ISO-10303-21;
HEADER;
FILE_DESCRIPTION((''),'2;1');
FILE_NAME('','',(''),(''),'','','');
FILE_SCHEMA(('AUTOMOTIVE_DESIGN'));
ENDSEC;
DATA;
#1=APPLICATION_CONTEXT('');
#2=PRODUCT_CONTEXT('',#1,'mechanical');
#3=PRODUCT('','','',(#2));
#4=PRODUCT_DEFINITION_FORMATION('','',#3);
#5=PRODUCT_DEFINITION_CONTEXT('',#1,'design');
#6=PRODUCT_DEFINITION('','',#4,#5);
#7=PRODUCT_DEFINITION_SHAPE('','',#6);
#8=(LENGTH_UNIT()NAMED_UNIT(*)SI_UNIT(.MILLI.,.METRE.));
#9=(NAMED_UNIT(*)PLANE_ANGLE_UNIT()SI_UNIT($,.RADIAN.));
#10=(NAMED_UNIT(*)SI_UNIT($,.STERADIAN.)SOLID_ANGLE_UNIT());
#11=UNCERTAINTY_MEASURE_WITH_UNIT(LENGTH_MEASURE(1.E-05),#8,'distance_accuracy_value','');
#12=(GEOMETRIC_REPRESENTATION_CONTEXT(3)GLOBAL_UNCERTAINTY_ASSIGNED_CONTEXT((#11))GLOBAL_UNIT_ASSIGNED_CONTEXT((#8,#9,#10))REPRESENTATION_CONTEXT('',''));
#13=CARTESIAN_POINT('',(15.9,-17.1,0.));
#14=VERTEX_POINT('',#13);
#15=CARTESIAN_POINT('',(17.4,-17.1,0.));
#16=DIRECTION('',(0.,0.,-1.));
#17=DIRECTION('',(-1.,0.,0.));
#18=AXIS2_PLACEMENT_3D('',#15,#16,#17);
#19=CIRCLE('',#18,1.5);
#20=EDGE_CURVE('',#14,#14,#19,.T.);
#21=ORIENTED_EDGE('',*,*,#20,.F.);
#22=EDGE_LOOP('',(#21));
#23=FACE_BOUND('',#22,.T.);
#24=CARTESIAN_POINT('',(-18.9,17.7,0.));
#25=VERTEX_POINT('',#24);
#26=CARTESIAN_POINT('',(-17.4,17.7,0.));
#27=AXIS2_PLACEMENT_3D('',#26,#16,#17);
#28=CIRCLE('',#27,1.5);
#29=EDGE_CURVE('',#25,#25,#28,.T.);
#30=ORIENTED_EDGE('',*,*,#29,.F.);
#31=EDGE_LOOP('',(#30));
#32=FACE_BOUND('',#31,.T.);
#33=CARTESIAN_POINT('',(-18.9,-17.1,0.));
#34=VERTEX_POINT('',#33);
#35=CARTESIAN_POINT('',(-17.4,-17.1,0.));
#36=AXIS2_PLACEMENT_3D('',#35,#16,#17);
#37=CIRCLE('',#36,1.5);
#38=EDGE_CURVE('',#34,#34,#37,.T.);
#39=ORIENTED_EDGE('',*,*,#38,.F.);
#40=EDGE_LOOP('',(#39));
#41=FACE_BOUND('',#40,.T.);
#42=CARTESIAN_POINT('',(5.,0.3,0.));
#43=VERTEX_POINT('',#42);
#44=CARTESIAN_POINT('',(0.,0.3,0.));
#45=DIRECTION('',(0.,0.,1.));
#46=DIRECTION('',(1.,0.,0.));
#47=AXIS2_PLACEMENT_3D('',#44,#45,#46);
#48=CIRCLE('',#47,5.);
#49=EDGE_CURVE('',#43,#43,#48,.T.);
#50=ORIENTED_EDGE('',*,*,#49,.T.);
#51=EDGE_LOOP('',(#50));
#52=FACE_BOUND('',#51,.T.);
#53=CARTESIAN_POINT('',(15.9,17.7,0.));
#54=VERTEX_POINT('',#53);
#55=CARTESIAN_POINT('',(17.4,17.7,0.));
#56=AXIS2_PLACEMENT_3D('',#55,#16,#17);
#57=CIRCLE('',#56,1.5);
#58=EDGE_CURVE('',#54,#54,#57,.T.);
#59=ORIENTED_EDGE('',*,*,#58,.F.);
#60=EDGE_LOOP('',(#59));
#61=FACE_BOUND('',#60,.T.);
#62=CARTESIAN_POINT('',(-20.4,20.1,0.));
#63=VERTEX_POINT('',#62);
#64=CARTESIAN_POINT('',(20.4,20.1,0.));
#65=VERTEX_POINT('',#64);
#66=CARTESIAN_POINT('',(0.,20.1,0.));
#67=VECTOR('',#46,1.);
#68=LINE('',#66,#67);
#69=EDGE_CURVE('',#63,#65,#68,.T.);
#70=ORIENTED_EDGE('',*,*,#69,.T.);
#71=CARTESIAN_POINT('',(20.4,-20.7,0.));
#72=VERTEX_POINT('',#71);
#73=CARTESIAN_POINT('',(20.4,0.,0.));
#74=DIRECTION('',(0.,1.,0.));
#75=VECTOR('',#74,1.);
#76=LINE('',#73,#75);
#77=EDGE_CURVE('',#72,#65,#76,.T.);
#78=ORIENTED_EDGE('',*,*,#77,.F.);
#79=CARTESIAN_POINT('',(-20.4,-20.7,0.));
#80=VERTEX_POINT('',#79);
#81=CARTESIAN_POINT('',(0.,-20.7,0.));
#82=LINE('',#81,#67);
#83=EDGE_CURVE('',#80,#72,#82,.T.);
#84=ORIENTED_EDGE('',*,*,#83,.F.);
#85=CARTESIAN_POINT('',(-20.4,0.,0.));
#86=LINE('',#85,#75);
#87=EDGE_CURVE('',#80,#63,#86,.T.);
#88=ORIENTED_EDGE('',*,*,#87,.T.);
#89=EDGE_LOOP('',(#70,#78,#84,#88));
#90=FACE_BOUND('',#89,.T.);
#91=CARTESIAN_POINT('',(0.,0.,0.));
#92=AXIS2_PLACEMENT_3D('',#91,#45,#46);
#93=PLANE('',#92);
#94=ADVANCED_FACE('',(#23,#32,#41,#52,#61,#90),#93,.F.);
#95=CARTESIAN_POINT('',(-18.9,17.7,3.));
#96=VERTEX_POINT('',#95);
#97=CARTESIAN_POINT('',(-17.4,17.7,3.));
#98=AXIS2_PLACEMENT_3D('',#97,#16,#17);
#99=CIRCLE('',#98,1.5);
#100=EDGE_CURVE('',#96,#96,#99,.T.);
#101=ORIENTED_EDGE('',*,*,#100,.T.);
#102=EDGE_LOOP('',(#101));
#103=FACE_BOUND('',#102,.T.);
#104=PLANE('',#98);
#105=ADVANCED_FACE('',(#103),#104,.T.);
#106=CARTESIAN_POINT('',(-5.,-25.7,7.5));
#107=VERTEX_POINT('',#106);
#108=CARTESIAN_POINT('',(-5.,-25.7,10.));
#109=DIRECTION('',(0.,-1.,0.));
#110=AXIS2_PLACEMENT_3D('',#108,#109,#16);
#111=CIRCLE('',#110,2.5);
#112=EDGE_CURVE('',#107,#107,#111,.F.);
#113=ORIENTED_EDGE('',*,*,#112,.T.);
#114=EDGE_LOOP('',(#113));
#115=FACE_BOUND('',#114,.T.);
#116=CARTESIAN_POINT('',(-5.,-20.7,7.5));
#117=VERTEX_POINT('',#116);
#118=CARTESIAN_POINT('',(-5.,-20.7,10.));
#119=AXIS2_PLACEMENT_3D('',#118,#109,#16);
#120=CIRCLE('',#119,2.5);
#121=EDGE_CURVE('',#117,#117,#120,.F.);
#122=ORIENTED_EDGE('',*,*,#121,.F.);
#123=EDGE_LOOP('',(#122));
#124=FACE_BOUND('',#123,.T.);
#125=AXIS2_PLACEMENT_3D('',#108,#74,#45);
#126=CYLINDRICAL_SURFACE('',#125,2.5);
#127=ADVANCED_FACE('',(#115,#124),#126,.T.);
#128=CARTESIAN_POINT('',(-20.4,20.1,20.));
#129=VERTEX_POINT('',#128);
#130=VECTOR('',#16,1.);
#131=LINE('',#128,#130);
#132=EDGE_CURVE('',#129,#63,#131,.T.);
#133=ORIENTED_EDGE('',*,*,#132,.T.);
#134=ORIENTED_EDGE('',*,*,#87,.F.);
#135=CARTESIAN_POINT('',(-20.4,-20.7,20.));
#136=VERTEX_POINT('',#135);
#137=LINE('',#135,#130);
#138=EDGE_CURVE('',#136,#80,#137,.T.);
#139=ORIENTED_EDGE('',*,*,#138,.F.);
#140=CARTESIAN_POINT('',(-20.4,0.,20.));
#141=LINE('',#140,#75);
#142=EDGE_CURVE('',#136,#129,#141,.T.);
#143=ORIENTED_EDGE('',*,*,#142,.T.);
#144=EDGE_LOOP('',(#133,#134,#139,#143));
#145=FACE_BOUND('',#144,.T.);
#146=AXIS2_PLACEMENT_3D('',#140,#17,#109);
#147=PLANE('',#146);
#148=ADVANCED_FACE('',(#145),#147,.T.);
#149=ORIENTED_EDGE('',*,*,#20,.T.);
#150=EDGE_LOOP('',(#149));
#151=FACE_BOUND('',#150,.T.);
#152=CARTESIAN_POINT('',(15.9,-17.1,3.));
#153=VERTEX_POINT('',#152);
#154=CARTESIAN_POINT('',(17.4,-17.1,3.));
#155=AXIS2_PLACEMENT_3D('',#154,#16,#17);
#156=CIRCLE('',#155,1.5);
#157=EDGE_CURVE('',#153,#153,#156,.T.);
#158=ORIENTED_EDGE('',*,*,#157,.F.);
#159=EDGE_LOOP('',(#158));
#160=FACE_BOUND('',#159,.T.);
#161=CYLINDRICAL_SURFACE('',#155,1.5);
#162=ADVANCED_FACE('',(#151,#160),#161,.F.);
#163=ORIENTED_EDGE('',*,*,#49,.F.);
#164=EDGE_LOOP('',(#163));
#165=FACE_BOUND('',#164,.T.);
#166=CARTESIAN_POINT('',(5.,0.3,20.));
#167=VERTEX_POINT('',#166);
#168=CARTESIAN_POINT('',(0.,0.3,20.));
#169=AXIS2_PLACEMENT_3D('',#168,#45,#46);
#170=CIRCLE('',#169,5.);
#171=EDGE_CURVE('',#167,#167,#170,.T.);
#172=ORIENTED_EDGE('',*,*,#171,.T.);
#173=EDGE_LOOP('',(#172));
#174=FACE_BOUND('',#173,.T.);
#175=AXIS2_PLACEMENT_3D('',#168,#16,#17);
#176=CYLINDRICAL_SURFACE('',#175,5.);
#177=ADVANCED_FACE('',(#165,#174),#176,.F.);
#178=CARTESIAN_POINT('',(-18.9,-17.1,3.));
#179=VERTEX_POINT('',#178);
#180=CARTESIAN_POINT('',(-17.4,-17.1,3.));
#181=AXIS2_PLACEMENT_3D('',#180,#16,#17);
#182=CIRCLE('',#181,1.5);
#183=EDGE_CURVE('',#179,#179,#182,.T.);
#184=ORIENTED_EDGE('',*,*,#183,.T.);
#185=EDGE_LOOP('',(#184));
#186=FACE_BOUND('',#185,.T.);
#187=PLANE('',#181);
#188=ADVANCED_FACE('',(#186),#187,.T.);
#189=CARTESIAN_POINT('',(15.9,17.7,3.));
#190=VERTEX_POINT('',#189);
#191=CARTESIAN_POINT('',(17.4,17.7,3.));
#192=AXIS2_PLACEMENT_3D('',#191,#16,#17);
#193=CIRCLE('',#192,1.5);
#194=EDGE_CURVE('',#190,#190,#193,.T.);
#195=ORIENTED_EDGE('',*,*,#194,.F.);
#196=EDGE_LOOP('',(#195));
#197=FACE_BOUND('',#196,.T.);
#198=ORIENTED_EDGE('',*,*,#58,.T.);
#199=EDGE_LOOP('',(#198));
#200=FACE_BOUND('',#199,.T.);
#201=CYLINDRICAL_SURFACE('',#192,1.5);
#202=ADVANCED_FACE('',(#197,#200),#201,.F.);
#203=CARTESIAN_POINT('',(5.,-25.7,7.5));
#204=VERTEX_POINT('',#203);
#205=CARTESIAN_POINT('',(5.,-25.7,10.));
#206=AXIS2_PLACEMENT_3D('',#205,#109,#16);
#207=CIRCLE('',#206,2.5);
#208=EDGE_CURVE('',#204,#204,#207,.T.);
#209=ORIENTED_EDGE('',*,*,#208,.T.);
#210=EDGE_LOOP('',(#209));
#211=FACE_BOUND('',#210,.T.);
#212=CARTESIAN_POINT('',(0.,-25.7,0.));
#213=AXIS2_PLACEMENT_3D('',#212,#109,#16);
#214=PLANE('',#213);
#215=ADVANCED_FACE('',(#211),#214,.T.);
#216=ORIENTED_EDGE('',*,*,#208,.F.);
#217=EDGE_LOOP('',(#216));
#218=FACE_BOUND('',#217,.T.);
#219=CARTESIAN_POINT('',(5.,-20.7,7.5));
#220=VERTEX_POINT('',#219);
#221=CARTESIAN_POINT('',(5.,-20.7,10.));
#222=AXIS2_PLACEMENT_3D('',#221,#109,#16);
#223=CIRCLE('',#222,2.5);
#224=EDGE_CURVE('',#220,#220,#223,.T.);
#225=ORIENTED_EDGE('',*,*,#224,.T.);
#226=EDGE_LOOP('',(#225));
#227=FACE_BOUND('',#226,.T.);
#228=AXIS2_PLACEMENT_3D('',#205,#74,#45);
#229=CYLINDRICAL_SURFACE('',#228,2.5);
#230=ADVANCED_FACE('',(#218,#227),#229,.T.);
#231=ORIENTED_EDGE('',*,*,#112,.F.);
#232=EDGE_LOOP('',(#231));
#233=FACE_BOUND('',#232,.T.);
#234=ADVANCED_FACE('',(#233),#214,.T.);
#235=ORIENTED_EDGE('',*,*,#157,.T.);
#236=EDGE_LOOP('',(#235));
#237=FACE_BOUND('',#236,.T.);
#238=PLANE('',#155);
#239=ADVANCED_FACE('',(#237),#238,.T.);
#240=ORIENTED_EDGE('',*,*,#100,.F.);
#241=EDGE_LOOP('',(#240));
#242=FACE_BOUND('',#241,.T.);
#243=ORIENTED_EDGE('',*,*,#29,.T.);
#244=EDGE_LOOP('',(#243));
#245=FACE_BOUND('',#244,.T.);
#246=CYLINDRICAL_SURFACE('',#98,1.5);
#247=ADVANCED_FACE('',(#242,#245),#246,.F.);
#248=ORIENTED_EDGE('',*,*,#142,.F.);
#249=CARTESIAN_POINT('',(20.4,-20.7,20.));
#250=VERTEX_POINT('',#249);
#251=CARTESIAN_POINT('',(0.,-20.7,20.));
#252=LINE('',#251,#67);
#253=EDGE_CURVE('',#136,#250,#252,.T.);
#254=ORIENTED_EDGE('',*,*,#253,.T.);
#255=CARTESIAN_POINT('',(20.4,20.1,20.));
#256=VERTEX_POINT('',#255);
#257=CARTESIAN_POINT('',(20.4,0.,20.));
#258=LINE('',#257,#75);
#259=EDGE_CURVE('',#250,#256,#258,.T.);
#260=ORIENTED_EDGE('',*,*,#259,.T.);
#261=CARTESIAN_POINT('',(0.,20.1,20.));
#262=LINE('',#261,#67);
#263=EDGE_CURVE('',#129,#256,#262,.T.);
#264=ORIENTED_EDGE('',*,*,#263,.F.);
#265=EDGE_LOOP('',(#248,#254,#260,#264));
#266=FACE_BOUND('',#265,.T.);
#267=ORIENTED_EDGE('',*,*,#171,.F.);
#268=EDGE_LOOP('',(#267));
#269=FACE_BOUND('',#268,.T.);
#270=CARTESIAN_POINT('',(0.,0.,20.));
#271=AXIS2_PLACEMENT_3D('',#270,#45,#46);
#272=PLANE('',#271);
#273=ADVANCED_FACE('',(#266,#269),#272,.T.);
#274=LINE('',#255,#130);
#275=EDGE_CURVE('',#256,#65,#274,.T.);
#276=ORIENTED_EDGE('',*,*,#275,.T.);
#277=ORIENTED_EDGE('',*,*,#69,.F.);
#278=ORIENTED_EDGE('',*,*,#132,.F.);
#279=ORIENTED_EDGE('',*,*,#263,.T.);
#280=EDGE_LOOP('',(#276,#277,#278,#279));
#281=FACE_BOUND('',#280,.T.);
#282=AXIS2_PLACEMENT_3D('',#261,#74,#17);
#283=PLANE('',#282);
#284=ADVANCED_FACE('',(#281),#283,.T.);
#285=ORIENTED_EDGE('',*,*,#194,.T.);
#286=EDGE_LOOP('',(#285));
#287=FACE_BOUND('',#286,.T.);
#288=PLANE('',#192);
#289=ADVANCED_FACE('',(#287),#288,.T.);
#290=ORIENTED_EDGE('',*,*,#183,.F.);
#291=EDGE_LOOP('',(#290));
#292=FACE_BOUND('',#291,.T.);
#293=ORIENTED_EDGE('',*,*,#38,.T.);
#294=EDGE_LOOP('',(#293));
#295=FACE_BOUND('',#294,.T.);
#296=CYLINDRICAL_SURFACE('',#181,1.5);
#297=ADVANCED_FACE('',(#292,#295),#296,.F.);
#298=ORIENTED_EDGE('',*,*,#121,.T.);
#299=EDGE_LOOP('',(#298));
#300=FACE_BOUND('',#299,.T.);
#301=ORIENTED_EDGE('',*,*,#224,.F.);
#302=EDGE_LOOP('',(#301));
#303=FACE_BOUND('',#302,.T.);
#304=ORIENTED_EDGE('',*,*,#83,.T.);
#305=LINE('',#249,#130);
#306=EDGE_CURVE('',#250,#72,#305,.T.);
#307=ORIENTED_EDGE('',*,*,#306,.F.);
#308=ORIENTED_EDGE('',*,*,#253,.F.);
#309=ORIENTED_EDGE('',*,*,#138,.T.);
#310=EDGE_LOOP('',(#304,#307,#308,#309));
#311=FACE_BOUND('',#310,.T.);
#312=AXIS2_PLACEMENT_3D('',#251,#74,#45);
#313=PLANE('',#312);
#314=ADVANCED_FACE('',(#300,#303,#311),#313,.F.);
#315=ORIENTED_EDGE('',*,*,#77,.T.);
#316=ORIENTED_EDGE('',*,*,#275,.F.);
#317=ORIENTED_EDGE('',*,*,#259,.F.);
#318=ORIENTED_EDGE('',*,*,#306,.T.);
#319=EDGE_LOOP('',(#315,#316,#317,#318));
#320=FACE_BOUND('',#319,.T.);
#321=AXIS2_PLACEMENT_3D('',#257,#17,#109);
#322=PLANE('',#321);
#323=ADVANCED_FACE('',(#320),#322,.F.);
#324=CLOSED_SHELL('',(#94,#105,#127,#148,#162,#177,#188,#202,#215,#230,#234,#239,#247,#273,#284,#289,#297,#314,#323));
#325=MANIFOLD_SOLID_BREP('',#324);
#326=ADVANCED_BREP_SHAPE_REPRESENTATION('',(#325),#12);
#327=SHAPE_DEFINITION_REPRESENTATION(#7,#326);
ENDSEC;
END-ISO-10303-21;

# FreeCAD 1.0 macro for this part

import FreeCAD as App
import Part
import Sketcher
Q = App.Units.Quantity


def add_polygon(sketch, points):
    """Adds a closed chain of lines whose ends are joined by coincident constraints."""
    first, n = sketch.GeometryCount, len(points)
    for a, b in zip(points, points[1:] + points[:1]):
        sketch.addGeometry(Part.LineSegment(App.Vector(*a, 0), App.Vector(*b, 0)), False)
    for i in range(n):
        sketch.addConstraint(Sketcher.Constraint("Coincident", first + i, 2, first + (i + 1) % n, 1))

doc = App.newDocument("Part")
params = doc.addObject("Spreadsheet::Sheet", "Params")
for row, (alias, value) in enumerate([
    ("sketch1_diameter", "10 mm"),
    ("sketch1_width", "40.8 mm"),
    ("pad1_length", "20 mm"),
    ("sketch2_diameter", "5 mm"),
    ("pad2_length", "5 mm"),
    ("sketch3_diameter", "3 mm"),
    ("pocket1_length", "3 mm"),
], start=1):
    params.set(f"A{row}", alias)
    params.set(f"B{row}", "=" + value)
    params.setAlias(f"B{row}", alias)

body = doc.addObject("PartDesign::Body", "Body")

sketch1 = body.newObject("Sketcher::SketchObject", "Sketch")
sketch1.AttachmentSupport = (doc.getObject("XY_Plane"), [""])
sketch1.MapMode = "FlatFace"
add_polygon(sketch1, [(-20, 20), (-20, -21), (20, -21), (20, 20)])
sketch1.addGeometry(Part.Circle(App.Vector(0, 0, 0), App.Vector(0, 0, 1), 5), False)
sketch1.addConstraint([
    Sketcher.Constraint("Vertical", 0),
    Sketcher.Constraint("Horizontal", 1),
    Sketcher.Constraint("Vertical", 2),
    Sketcher.Constraint("Horizontal", 3),
    Sketcher.Constraint("PointOnObject", 4, 3, -2),
    Sketcher.Constraint("Equal", 3, 0),
    Sketcher.Constraint("Diameter", 4, Q("10 mm")),
    Sketcher.Constraint("DistanceX", 1, 1, 1, 2, Q("40.8 mm")),
    Sketcher.Constraint("DistanceY", 0, 2, 4, 3, Q("21 mm")),
    Sketcher.Constraint("DistanceY", -1, 1, 4, 3, Q("0.3 mm")),
    Sketcher.Constraint("DistanceX", 0, 2, -1, 1, Q("20.4 mm")),
])
sketch1.setExpression("Constraints[10]", "Params.sketch1_diameter")
sketch1.setExpression("Constraints[11]", "Params.sketch1_width")
pad1 = body.newObject("PartDesign::Pad", "Pad")
pad1.Profile = sketch1
pad1.setExpression("Length", "Params.pad1_length")

sketch2 = body.newObject("Sketcher::SketchObject", "Sketch001")
sketch2.AttachmentSupport = (doc.getObject("XZ_Plane"), [""])
sketch2.MapMode = "FlatFace"
sketch2.AttachmentOffset = App.Placement(App.Vector(0, 0, 20.7), App.Rotation())
sketch2.addGeometry([
    Part.Circle(App.Vector(5, 10, 0), App.Vector(0, 0, 1), 2.5),
    Part.Circle(App.Vector(-5, 10, 0), App.Vector(0, 0, 1), 2.5),
], False)
sketch2.addConstraint([
    Sketcher.Constraint("Equal", 0, 1),
    Sketcher.Constraint("Symmetric", 0, 3, 1, 3, -2),
    Sketcher.Constraint("Diameter", 0, Q("5 mm")),
    Sketcher.Constraint("DistanceX", -1, 1, 0, 3, Q("5 mm")),
    Sketcher.Constraint("DistanceY", -1, 1, 0, 3, Q("10 mm")),
])
sketch2.setExpression("Constraints[2]", "Params.sketch2_diameter")
pad2 = body.newObject("PartDesign::Pad", "Pad001")
pad2.Profile = sketch2
pad2.setExpression("Length", "Params.pad2_length")

sketch3 = body.newObject("Sketcher::SketchObject", "Sketch002")
sketch3.AttachmentSupport = (doc.getObject("XY_Plane"), [""])
sketch3.MapMode = "FlatFace"
sketch3.addGeometry([
    Part.Circle(App.Vector(17.4, 17.7, 0), App.Vector(0, 0, 1), 1.5),
    Part.Circle(App.Vector(-17.4, 17.7, 0), App.Vector(0, 0, 1), 1.5),
    Part.Circle(App.Vector(-17.4, -17.1, 0), App.Vector(0, 0, 1), 1.5),
    Part.Circle(App.Vector(17.4, -17.1, 0), App.Vector(0, 0, 1), 1.5),
], False)
sketch3.addConstraint([
    Sketcher.Constraint("Equal", 0, 1),
    Sketcher.Constraint("Equal", 1, 2),
    Sketcher.Constraint("Equal", 2, 3),
    Sketcher.Constraint("Symmetric", 0, 3, 1, 3, -2),
    Sketcher.Constraint("Symmetric", 2, 3, 3, 3, -2),
    Sketcher.Constraint("Vertical", 1, 3, 2, 3),
    Sketcher.Constraint("Diameter", 0, Q("3 mm")),
    Sketcher.Constraint("DistanceX", -1, 1, 0, 3, Q("17.4 mm")),
    Sketcher.Constraint("DistanceY", -1, 1, 0, 3, Q("17.7 mm")),
    Sketcher.Constraint("DistanceY", 2, 3, -1, 1, Q("17.1 mm")),
])
sketch3.setExpression("Constraints[6]", "Params.sketch3_diameter")
pocket1 = body.newObject("PartDesign::Pocket", "Pocket")
pocket1.Profile = sketch3
pocket1.setExpression("Length", "Params.pocket1_length")
pocket1.Reversed = True

doc.recompute()
